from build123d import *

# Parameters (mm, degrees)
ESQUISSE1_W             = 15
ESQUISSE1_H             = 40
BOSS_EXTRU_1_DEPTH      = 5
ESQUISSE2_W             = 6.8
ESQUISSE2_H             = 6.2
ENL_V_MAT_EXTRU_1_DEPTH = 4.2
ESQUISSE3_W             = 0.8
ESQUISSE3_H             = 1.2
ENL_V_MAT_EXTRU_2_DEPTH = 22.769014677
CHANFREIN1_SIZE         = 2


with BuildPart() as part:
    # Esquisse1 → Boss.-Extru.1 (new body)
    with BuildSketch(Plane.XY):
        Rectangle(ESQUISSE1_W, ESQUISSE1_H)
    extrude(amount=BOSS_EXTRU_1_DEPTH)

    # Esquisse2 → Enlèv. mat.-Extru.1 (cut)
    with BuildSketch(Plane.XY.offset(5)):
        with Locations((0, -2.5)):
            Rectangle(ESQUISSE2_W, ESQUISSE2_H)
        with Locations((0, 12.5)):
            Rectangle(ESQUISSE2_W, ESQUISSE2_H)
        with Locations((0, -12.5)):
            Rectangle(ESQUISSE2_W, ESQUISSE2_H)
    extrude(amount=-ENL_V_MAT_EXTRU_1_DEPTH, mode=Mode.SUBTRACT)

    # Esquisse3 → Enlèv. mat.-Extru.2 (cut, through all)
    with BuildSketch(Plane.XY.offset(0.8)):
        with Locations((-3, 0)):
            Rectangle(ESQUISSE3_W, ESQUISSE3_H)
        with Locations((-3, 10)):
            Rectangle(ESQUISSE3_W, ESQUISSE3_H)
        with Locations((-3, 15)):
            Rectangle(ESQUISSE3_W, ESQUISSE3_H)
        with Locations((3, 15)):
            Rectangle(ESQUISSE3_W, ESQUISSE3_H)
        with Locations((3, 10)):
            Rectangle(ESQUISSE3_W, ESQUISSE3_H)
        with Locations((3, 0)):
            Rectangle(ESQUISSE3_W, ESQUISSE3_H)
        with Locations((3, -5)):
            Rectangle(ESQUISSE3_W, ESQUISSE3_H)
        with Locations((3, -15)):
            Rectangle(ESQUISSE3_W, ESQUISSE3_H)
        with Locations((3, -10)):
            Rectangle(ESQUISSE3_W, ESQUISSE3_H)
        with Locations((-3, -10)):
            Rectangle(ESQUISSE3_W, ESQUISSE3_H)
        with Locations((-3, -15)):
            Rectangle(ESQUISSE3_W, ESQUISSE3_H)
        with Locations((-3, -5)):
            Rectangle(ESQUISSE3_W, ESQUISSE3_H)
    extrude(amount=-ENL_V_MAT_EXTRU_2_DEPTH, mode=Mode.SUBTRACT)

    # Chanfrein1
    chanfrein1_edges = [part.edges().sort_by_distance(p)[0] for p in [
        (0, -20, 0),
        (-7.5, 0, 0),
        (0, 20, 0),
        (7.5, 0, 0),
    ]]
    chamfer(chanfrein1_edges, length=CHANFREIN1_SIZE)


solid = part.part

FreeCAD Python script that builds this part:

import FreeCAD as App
import Part
import Sketcher

V = App.Vector


def edges_at(feature, points):
    """Names of the edges that pass closest to the given points."""
    edges = feature.Shape.Edges
    near = lambda p: min(range(len(edges)), key=lambda i: edges[i].distToShape(Part.Vertex(*p))[0])
    return sorted({f"Edge{near(p) + 1}" for p in points})

doc = App.newDocument("Part")
body = doc.addObject("PartDesign::Body", "Body")

# Sketch on XY plane
sketch1 = body.newObject("Sketcher::SketchObject", "Sketch")
sketch1.AttachmentSupport = (doc.getObject("XY_Plane"), [""])
sketch1.MapMode = "FlatFace"
sketch1.addGeometry([
    Part.LineSegment(V(-8, 20, 0), V(-8, -20, 0)),
    Part.LineSegment(V(-8, -20, 0), V(8, -20, 0)),
    Part.LineSegment(V(8, -20, 0), V(8, 20, 0)),
    Part.LineSegment(V(8, 20, 0), V(-8, 20, 0)),
], False)
sketch1.addConstraint([
    Sketcher.Constraint("Coincident", 0, 2, 1, 1),
    Sketcher.Constraint("Coincident", 1, 2, 2, 1),
    Sketcher.Constraint("Coincident", 2, 2, 3, 1),
    Sketcher.Constraint("Coincident", 3, 2, 0, 1),
    Sketcher.Constraint("Vertical", 0),
    Sketcher.Constraint("Horizontal", 1),
    Sketcher.Constraint("Vertical", 2),
    Sketcher.Constraint("Horizontal", 3),
    Sketcher.Constraint("Symmetric", 0, 2, 2, 2, -1, 1),
    Sketcher.Constraint("DistanceX", 1, 1, 1, 2, 15.0),
    Sketcher.Constraint("DistanceY", 0, 2, 0, 1, 40.0),
])
pad1 = body.newObject("PartDesign::Pad", "Pad")
pad1.Profile = sketch1
pad1.Length = 5

# Sketch on XY plane
sketch2 = body.newObject("Sketcher::SketchObject", "Sketch001")
sketch2.AttachmentSupport = (doc.getObject("XY_Plane"), [""])
sketch2.MapMode = "FlatFace"
sketch2.AttachmentOffset = App.Placement(V(0, 0, 5), App.Rotation())
sketch2.addGeometry([
    Part.LineSegment(V(-3, 1, 0), V(-3, -6, 0)),  # 0
    Part.LineSegment(V(-3, -6, 0), V(3, -6, 0)),  # 1
    Part.LineSegment(V(3, -6, 0), V(3, 1, 0)),  # 2
    Part.LineSegment(V(3, 1, 0), V(-3, 1, 0)),  # 3
    Part.LineSegment(V(-3, 16, 0), V(-3, 9, 0)),  # 4
    Part.LineSegment(V(-3, 9, 0), V(3, 9, 0)),  # 5
    Part.LineSegment(V(3, 9, 0), V(3, 16, 0)),  # 6
    Part.LineSegment(V(3, 16, 0), V(-3, 16, 0)),  # 7
    Part.LineSegment(V(-3, -9, 0), V(-3, -16, 0)),  # 8
    Part.LineSegment(V(-3, -16, 0), V(3, -16, 0)),  # 9
    Part.LineSegment(V(3, -16, 0), V(3, -9, 0)),  # 10
    Part.LineSegment(V(3, -9, 0), V(-3, -9, 0)),  # 11
], False)
sketch2.addConstraint([
    Sketcher.Constraint("Coincident", 0, 2, 1, 1),
    Sketcher.Constraint("Coincident", 1, 2, 2, 1),
    Sketcher.Constraint("Coincident", 2, 2, 3, 1),
    Sketcher.Constraint("Coincident", 3, 2, 0, 1),
    Sketcher.Constraint("Coincident", 4, 2, 5, 1),
    Sketcher.Constraint("Coincident", 5, 2, 6, 1),
    Sketcher.Constraint("Coincident", 6, 2, 7, 1),
    Sketcher.Constraint("Coincident", 7, 2, 4, 1),
    Sketcher.Constraint("Coincident", 8, 2, 9, 1),
    Sketcher.Constraint("Coincident", 9, 2, 10, 1),
    Sketcher.Constraint("Coincident", 10, 2, 11, 1),
    Sketcher.Constraint("Coincident", 11, 2, 8, 1),
    Sketcher.Constraint("Vertical", 0),
    Sketcher.Constraint("Horizontal", 1),
    Sketcher.Constraint("Vertical", 2),
    Sketcher.Constraint("Horizontal", 3),
    Sketcher.Constraint("Vertical", 4),
    Sketcher.Constraint("Horizontal", 5),
    Sketcher.Constraint("Vertical", 6),
    Sketcher.Constraint("Horizontal", 7),
    Sketcher.Constraint("Vertical", 8),
    Sketcher.Constraint("Horizontal", 9),
    Sketcher.Constraint("Vertical", 10),
    Sketcher.Constraint("Horizontal", 11),
    Sketcher.Constraint("Symmetric", 6, 2, 8, 2, -1, 1),
    Sketcher.Constraint("Symmetric", 4, 2, 10, 2, -1, 1),
    Sketcher.Constraint("Vertical", 3, 2, 4, 2),
    Sketcher.Constraint("Vertical", 2, 2, 5, 2),
    Sketcher.Constraint("Vertical", 7, 2, 8, 2),
    Sketcher.Constraint("Equal", 2, 4),
    Sketcher.Constraint("DistanceX", 1, 1, 1, 2, 6.8),
    Sketcher.Constraint("DistanceY", 0, 2, 0, 1, 6.2),
    Sketcher.Constraint("DistanceY", 0, 2, 4, 2, 15.0),
    Sketcher.Constraint("DistanceY", 8, 2, 0, 2, 10.0),
])
pocket1 = body.newObject("PartDesign::Pocket", "Pocket")
pocket1.Profile = sketch2
pocket1.Length = 4.2

# Sketch on XY plane
sketch3 = body.newObject("Sketcher::SketchObject", "Sketch002")
sketch3.AttachmentSupport = (doc.getObject("XY_Plane"), [""])
sketch3.MapMode = "FlatFace"
sketch3.AttachmentOffset = App.Placement(V(0, 0, 0.8), App.Rotation())
sketch3.addGeometry([
    Part.LineSegment(V(-3.4, 0.6, 0), V(-3.4, -0.6, 0)),  # 0
    Part.LineSegment(V(-3.4, -0.6, 0), V(-2.6, -0.6, 0)),  # 1
    Part.LineSegment(V(-2.6, -0.6, 0), V(-2.6, 0.6, 0)),  # 2
    Part.LineSegment(V(-2.6, 0.6, 0), V(-3.4, 0.6, 0)),  # 3
    Part.LineSegment(V(-3.4, 10.6, 0), V(-3.4, 9.4, 0)),  # 4
    Part.LineSegment(V(-3.4, 9.4, 0), V(-2.6, 9.4, 0)),  # 5
    Part.LineSegment(V(-2.6, 9.4, 0), V(-2.6, 10.6, 0)),  # 6
    Part.LineSegment(V(-2.6, 10.6, 0), V(-3.4, 10.6, 0)),  # 7
    Part.LineSegment(V(-3.4, 15.6, 0), V(-3.4, 14.4, 0)),  # 8
    Part.LineSegment(V(-3.4, 14.4, 0), V(-2.6, 14.4, 0)),  # 9
    Part.LineSegment(V(-2.6, 14.4, 0), V(-2.6, 15.6, 0)),  # 10
    Part.LineSegment(V(-2.6, 15.6, 0), V(-3.4, 15.6, 0)),  # 11
    Part.LineSegment(V(2.6, 15.6, 0), V(2.6, 14.4, 0)),  # 12
    Part.LineSegment(V(2.6, 14.4, 0), V(3.4, 14.4, 0)),  # 13
    Part.LineSegment(V(3.4, 14.4, 0), V(3.4, 15.6, 0)),  # 14
    Part.LineSegment(V(3.4, 15.6, 0), V(2.6, 15.6, 0)),  # 15
    Part.LineSegment(V(2.6, 10.6, 0), V(2.6, 9.4, 0)),  # 16
    Part.LineSegment(V(2.6, 9.4, 0), V(3.4, 9.4, 0)),  # 17
    Part.LineSegment(V(3.4, 9.4, 0), V(3.4, 10.6, 0)),  # 18
    Part.LineSegment(V(3.4, 10.6, 0), V(2.6, 10.6, 0)),  # 19
    Part.LineSegment(V(2.6, 0.6, 0), V(2.6, -0.6, 0)),  # 20
    Part.LineSegment(V(2.6, -0.6, 0), V(3.4, -0.6, 0)),  # 21
    Part.LineSegment(V(3.4, -0.6, 0), V(3.4, 0.6, 0)),  # 22
    Part.LineSegment(V(3.4, 0.6, 0), V(2.6, 0.6, 0)),  # 23
    Part.LineSegment(V(2.6, -4.4, 0), V(2.6, -5.6, 0)),  # 24
    Part.LineSegment(V(2.6, -5.6, 0), V(3.4, -5.6, 0)),  # 25
    Part.LineSegment(V(3.4, -5.6, 0), V(3.4, -4.4, 0)),  # 26
    Part.LineSegment(V(3.4, -4.4, 0), V(2.6, -4.4, 0)),  # 27
    Part.LineSegment(V(2.6, -14.4, 0), V(2.6, -15.6, 0)),  # 28
    Part.LineSegment(V(2.6, -15.6, 0), V(3.4, -15.6, 0)),  # 29
    Part.LineSegment(V(3.4, -15.6, 0), V(3.4, -14.4, 0)),  # 30
    Part.LineSegment(V(3.4, -14.4, 0), V(2.6, -14.4, 0)),  # 31
    Part.LineSegment(V(2.6, -9.4, 0), V(2.6, -10.6, 0)),  # 32
    Part.LineSegment(V(2.6, -10.6, 0), V(3.4, -10.6, 0)),  # 33
    Part.LineSegment(V(3.4, -10.6, 0), V(3.4, -9.4, 0)),  # 34
    Part.LineSegment(V(3.4, -9.4, 0), V(2.6, -9.4, 0)),  # 35
    Part.LineSegment(V(-3.4, -9.4, 0), V(-3.4, -10.6, 0)),  # 36
    Part.LineSegment(V(-3.4, -10.6, 0), V(-2.6, -10.6, 0)),  # 37
    Part.LineSegment(V(-2.6, -10.6, 0), V(-2.6, -9.4, 0)),  # 38
    Part.LineSegment(V(-2.6, -9.4, 0), V(-3.4, -9.4, 0)),  # 39
    Part.LineSegment(V(-3.4, -14.4, 0), V(-3.4, -15.6, 0)),  # 40
    Part.LineSegment(V(-3.4, -15.6, 0), V(-2.6, -15.6, 0)),  # 41
    Part.LineSegment(V(-2.6, -15.6, 0), V(-2.6, -14.4, 0)),  # 42
    Part.LineSegment(V(-2.6, -14.4, 0), V(-3.4, -14.4, 0)),  # 43
    Part.LineSegment(V(-3.4, -4.4, 0), V(-3.4, -5.6, 0)),  # 44
    Part.LineSegment(V(-3.4, -5.6, 0), V(-2.6, -5.6, 0)),  # 45
    Part.LineSegment(V(-2.6, -5.6, 0), V(-2.6, -4.4, 0)),  # 46
    Part.LineSegment(V(-2.6, -4.4, 0), V(-3.4, -4.4, 0)),  # 47
], False)
sketch3.addConstraint([
    Sketcher.Constraint("Coincident", 0, 2, 1, 1),
    Sketcher.Constraint("Coincident", 1, 2, 2, 1),
    Sketcher.Constraint("Coincident", 2, 2, 3, 1),
    Sketcher.Constraint("Coincident", 3, 2, 0, 1),
    Sketcher.Constraint("Coincident", 4, 2, 5, 1),
    Sketcher.Constraint("Coincident", 5, 2, 6, 1),
    Sketcher.Constraint("Coincident", 6, 2, 7, 1),
    Sketcher.Constraint("Coincident", 7, 2, 4, 1),
    Sketcher.Constraint("Coincident", 8, 2, 9, 1),
    Sketcher.Constraint("Coincident", 9, 2, 10, 1),
    Sketcher.Constraint("Coincident", 10, 2, 11, 1),
    Sketcher.Constraint("Coincident", 11, 2, 8, 1),
    Sketcher.Constraint("Coincident", 12, 2, 13, 1),
    Sketcher.Constraint("Coincident", 13, 2, 14, 1),
    Sketcher.Constraint("Coincident", 14, 2, 15, 1),
    Sketcher.Constraint("Coincident", 15, 2, 12, 1),
    Sketcher.Constraint("Coincident", 16, 2, 17, 1),
    Sketcher.Constraint("Coincident", 17, 2, 18, 1),
    Sketcher.Constraint("Coincident", 18, 2, 19, 1),
    Sketcher.Constraint("Coincident", 19, 2, 16, 1),
    Sketcher.Constraint("Coincident", 20, 2, 21, 1),
    Sketcher.Constraint("Coincident", 21, 2, 22, 1),
    Sketcher.Constraint("Coincident", 22, 2, 23, 1),
    Sketcher.Constraint("Coincident", 23, 2, 20, 1),
    Sketcher.Constraint("Coincident", 24, 2, 25, 1),
    Sketcher.Constraint("Coincident", 25, 2, 26, 1),
    Sketcher.Constraint("Coincident", 26, 2, 27, 1),
    Sketcher.Constraint("Coincident", 27, 2, 24, 1),
    Sketcher.Constraint("Coincident", 28, 2, 29, 1),
    Sketcher.Constraint("Coincident", 29, 2, 30, 1),
    Sketcher.Constraint("Coincident", 30, 2, 31, 1),
    Sketcher.Constraint("Coincident", 31, 2, 28, 1),
    Sketcher.Constraint("Coincident", 32, 2, 33, 1),
    Sketcher.Constraint("Coincident", 33, 2, 34, 1),
    Sketcher.Constraint("Coincident", 34, 2, 35, 1),
    Sketcher.Constraint("Coincident", 35, 2, 32, 1),
    Sketcher.Constraint("Coincident", 36, 2, 37, 1),
    Sketcher.Constraint("Coincident", 37, 2, 38, 1),
    Sketcher.Constraint("Coincident", 38, 2, 39, 1),
    Sketcher.Constraint("Coincident", 39, 2, 36, 1),
    Sketcher.Constraint("Coincident", 40, 2, 41, 1),
    Sketcher.Constraint("Coincident", 41, 2, 42, 1),
    Sketcher.Constraint("Coincident", 42, 2, 43, 1),
    Sketcher.Constraint("Coincident", 43, 2, 40, 1),
    Sketcher.Constraint("Coincident", 44, 2, 45, 1),
    Sketcher.Constraint("Coincident", 45, 2, 46, 1),
    Sketcher.Constraint("Coincident", 46, 2, 47, 1),
    Sketcher.Constraint("Coincident", 47, 2, 44, 1),
    Sketcher.Constraint("Vertical", 0),
    Sketcher.Constraint("Horizontal", 1),
    Sketcher.Constraint("Vertical", 2),
    Sketcher.Constraint("Horizontal", 3),
    Sketcher.Constraint("Vertical", 4),
    Sketcher.Constraint("Horizontal", 5),
    Sketcher.Constraint("Vertical", 6),
    Sketcher.Constraint("Horizontal", 7),
    Sketcher.Constraint("Vertical", 8),
    Sketcher.Constraint("Horizontal", 9),
    Sketcher.Constraint("Vertical", 10),
    Sketcher.Constraint("Horizontal", 11),
    Sketcher.Constraint("Vertical", 12),
    Sketcher.Constraint("Horizontal", 13),
    Sketcher.Constraint("Vertical", 14),
    Sketcher.Constraint("Horizontal", 15),
    Sketcher.Constraint("Vertical", 16),
    Sketcher.Constraint("Horizontal", 17),
    Sketcher.Constraint("Vertical", 18),
    Sketcher.Constraint("Horizontal", 19),
    Sketcher.Constraint("Vertical", 20),
    Sketcher.Constraint("Horizontal", 21),
    Sketcher.Constraint("Vertical", 22),
    Sketcher.Constraint("Horizontal", 23),
    Sketcher.Constraint("Vertical", 24),
    Sketcher.Constraint("Horizontal", 25),
    Sketcher.Constraint("Vertical", 26),
    Sketcher.Constraint("Horizontal", 27),
    Sketcher.Constraint("Vertical", 28),
    Sketcher.Constraint("Horizontal", 29),
    Sketcher.Constraint("Vertical", 30),
    Sketcher.Constraint("Horizontal", 31),
    Sketcher.Constraint("Vertical", 32),
    Sketcher.Constraint("Horizontal", 33),
    Sketcher.Constraint("Vertical", 34),
    Sketcher.Constraint("Horizontal", 35),
    Sketcher.Constraint("Vertical", 36),
    Sketcher.Constraint("Horizontal", 37),
    Sketcher.Constraint("Vertical", 38),
    Sketcher.Constraint("Horizontal", 39),
    Sketcher.Constraint("Vertical", 40),
    Sketcher.Constraint("Horizontal", 41),
    Sketcher.Constraint("Vertical", 42),
    Sketcher.Constraint("Horizontal", 43),
    Sketcher.Constraint("Vertical", 44),
    Sketcher.Constraint("Horizontal", 45),
    Sketcher.Constraint("Vertical", 46),
    Sketcher.Constraint("Horizontal", 47),
    Sketcher.Constraint("Symmetric", 2, 2, 20, 2, -1, 1),
    Sketcher.Constraint("Symmetric", 0, 2, 22, 2, -1, 1),
    Sketcher.Constraint("Symmetric", 10, 2, 28, 2, -1, 1),
    Sketcher.Constraint("Symmetric", 8, 2, 30, 2, -1, 1),
    Sketcher.Constraint("Symmetric", 6, 2, 32, 2, -1, 1),
    Sketcher.Constraint("Symmetric", 4, 2, 34, 2, -1, 1),
    Sketcher.Constraint("Symmetric", 18, 2, 36, 2, -1, 1),
    Sketcher.Constraint("Symmetric", 16, 2, 38, 2, -1, 1),
    Sketcher.Constraint("Symmetric", 14, 2, 40, 2, -1, 1),
    Sketcher.Constraint("Symmetric", 12, 2, 42, 2, -1, 1),
    Sketcher.Constraint("Symmetric", 9, 2, 12, 2, -2),
    Sketcher.Constraint("Symmetric", 11, 2, 14, 2, -2),
    Sketcher.Constraint("Symmetric", 5, 2, 16, 2, -2),
    Sketcher.Constraint("Symmetric", 7, 2, 18, 2, -2),
    Sketcher.Constraint("Symmetric", 25, 2, 44, 2, -2),
    Sketcher.Constraint("Symmetric", 27, 2, 46, 2, -2),
    Sketcher.Constraint("Horizontal", 1, 2, 20, 2),
    Sketcher.Constraint("Vertical", 3, 2, 4, 2),
    Sketcher.Constraint("Vertical", 2, 2, 5, 2),
    Sketcher.Constraint("Vertical", 7, 2, 8, 2),
    Sketcher.Constraint("Vertical", 6, 2, 9, 2),
    Sketcher.Constraint("Vertical", 23, 2, 24, 2),
    Sketcher.Constraint("Vertical", 22, 2, 25, 2),
    Sketcher.Constraint("Equal", 2, 4),
    Sketcher.Constraint("Equal", 6, 8),
    Sketcher.Constraint("Equal", 22, 24),
    Sketcher.Constraint("DistanceX", 1, 1, 1, 2, 0.8),
    Sketcher.Constraint("DistanceY", 0, 2, 0, 1, 1.2),
    Sketcher.Constraint("DistanceY", 0, 2, 4, 2, 10.0),
    Sketcher.Constraint("DistanceY", 4, 2, 8, 2, 5.0),
    Sketcher.Constraint("DistanceX", 8, 2, 12, 2, 6.0),
    Sketcher.Constraint("DistanceY", 24, 2, 20, 2, 5.0),
])
pocket2 = body.newObject("PartDesign::Pocket", "Pocket001")
pocket2.Profile = sketch3
pocket2.Type = "ThroughAll"
doc.recompute()

chamfer = body.newObject("PartDesign::Chamfer", "Chamfer")
chamfer.Base = (pocket2, edges_at(pocket2, [
    (0, -20, 0),
    (-7.5, 0, 0),
    (0, 20, 0),
    (7.5, 0, 0),
]))
chamfer.Size = 2

doc.recompute()
